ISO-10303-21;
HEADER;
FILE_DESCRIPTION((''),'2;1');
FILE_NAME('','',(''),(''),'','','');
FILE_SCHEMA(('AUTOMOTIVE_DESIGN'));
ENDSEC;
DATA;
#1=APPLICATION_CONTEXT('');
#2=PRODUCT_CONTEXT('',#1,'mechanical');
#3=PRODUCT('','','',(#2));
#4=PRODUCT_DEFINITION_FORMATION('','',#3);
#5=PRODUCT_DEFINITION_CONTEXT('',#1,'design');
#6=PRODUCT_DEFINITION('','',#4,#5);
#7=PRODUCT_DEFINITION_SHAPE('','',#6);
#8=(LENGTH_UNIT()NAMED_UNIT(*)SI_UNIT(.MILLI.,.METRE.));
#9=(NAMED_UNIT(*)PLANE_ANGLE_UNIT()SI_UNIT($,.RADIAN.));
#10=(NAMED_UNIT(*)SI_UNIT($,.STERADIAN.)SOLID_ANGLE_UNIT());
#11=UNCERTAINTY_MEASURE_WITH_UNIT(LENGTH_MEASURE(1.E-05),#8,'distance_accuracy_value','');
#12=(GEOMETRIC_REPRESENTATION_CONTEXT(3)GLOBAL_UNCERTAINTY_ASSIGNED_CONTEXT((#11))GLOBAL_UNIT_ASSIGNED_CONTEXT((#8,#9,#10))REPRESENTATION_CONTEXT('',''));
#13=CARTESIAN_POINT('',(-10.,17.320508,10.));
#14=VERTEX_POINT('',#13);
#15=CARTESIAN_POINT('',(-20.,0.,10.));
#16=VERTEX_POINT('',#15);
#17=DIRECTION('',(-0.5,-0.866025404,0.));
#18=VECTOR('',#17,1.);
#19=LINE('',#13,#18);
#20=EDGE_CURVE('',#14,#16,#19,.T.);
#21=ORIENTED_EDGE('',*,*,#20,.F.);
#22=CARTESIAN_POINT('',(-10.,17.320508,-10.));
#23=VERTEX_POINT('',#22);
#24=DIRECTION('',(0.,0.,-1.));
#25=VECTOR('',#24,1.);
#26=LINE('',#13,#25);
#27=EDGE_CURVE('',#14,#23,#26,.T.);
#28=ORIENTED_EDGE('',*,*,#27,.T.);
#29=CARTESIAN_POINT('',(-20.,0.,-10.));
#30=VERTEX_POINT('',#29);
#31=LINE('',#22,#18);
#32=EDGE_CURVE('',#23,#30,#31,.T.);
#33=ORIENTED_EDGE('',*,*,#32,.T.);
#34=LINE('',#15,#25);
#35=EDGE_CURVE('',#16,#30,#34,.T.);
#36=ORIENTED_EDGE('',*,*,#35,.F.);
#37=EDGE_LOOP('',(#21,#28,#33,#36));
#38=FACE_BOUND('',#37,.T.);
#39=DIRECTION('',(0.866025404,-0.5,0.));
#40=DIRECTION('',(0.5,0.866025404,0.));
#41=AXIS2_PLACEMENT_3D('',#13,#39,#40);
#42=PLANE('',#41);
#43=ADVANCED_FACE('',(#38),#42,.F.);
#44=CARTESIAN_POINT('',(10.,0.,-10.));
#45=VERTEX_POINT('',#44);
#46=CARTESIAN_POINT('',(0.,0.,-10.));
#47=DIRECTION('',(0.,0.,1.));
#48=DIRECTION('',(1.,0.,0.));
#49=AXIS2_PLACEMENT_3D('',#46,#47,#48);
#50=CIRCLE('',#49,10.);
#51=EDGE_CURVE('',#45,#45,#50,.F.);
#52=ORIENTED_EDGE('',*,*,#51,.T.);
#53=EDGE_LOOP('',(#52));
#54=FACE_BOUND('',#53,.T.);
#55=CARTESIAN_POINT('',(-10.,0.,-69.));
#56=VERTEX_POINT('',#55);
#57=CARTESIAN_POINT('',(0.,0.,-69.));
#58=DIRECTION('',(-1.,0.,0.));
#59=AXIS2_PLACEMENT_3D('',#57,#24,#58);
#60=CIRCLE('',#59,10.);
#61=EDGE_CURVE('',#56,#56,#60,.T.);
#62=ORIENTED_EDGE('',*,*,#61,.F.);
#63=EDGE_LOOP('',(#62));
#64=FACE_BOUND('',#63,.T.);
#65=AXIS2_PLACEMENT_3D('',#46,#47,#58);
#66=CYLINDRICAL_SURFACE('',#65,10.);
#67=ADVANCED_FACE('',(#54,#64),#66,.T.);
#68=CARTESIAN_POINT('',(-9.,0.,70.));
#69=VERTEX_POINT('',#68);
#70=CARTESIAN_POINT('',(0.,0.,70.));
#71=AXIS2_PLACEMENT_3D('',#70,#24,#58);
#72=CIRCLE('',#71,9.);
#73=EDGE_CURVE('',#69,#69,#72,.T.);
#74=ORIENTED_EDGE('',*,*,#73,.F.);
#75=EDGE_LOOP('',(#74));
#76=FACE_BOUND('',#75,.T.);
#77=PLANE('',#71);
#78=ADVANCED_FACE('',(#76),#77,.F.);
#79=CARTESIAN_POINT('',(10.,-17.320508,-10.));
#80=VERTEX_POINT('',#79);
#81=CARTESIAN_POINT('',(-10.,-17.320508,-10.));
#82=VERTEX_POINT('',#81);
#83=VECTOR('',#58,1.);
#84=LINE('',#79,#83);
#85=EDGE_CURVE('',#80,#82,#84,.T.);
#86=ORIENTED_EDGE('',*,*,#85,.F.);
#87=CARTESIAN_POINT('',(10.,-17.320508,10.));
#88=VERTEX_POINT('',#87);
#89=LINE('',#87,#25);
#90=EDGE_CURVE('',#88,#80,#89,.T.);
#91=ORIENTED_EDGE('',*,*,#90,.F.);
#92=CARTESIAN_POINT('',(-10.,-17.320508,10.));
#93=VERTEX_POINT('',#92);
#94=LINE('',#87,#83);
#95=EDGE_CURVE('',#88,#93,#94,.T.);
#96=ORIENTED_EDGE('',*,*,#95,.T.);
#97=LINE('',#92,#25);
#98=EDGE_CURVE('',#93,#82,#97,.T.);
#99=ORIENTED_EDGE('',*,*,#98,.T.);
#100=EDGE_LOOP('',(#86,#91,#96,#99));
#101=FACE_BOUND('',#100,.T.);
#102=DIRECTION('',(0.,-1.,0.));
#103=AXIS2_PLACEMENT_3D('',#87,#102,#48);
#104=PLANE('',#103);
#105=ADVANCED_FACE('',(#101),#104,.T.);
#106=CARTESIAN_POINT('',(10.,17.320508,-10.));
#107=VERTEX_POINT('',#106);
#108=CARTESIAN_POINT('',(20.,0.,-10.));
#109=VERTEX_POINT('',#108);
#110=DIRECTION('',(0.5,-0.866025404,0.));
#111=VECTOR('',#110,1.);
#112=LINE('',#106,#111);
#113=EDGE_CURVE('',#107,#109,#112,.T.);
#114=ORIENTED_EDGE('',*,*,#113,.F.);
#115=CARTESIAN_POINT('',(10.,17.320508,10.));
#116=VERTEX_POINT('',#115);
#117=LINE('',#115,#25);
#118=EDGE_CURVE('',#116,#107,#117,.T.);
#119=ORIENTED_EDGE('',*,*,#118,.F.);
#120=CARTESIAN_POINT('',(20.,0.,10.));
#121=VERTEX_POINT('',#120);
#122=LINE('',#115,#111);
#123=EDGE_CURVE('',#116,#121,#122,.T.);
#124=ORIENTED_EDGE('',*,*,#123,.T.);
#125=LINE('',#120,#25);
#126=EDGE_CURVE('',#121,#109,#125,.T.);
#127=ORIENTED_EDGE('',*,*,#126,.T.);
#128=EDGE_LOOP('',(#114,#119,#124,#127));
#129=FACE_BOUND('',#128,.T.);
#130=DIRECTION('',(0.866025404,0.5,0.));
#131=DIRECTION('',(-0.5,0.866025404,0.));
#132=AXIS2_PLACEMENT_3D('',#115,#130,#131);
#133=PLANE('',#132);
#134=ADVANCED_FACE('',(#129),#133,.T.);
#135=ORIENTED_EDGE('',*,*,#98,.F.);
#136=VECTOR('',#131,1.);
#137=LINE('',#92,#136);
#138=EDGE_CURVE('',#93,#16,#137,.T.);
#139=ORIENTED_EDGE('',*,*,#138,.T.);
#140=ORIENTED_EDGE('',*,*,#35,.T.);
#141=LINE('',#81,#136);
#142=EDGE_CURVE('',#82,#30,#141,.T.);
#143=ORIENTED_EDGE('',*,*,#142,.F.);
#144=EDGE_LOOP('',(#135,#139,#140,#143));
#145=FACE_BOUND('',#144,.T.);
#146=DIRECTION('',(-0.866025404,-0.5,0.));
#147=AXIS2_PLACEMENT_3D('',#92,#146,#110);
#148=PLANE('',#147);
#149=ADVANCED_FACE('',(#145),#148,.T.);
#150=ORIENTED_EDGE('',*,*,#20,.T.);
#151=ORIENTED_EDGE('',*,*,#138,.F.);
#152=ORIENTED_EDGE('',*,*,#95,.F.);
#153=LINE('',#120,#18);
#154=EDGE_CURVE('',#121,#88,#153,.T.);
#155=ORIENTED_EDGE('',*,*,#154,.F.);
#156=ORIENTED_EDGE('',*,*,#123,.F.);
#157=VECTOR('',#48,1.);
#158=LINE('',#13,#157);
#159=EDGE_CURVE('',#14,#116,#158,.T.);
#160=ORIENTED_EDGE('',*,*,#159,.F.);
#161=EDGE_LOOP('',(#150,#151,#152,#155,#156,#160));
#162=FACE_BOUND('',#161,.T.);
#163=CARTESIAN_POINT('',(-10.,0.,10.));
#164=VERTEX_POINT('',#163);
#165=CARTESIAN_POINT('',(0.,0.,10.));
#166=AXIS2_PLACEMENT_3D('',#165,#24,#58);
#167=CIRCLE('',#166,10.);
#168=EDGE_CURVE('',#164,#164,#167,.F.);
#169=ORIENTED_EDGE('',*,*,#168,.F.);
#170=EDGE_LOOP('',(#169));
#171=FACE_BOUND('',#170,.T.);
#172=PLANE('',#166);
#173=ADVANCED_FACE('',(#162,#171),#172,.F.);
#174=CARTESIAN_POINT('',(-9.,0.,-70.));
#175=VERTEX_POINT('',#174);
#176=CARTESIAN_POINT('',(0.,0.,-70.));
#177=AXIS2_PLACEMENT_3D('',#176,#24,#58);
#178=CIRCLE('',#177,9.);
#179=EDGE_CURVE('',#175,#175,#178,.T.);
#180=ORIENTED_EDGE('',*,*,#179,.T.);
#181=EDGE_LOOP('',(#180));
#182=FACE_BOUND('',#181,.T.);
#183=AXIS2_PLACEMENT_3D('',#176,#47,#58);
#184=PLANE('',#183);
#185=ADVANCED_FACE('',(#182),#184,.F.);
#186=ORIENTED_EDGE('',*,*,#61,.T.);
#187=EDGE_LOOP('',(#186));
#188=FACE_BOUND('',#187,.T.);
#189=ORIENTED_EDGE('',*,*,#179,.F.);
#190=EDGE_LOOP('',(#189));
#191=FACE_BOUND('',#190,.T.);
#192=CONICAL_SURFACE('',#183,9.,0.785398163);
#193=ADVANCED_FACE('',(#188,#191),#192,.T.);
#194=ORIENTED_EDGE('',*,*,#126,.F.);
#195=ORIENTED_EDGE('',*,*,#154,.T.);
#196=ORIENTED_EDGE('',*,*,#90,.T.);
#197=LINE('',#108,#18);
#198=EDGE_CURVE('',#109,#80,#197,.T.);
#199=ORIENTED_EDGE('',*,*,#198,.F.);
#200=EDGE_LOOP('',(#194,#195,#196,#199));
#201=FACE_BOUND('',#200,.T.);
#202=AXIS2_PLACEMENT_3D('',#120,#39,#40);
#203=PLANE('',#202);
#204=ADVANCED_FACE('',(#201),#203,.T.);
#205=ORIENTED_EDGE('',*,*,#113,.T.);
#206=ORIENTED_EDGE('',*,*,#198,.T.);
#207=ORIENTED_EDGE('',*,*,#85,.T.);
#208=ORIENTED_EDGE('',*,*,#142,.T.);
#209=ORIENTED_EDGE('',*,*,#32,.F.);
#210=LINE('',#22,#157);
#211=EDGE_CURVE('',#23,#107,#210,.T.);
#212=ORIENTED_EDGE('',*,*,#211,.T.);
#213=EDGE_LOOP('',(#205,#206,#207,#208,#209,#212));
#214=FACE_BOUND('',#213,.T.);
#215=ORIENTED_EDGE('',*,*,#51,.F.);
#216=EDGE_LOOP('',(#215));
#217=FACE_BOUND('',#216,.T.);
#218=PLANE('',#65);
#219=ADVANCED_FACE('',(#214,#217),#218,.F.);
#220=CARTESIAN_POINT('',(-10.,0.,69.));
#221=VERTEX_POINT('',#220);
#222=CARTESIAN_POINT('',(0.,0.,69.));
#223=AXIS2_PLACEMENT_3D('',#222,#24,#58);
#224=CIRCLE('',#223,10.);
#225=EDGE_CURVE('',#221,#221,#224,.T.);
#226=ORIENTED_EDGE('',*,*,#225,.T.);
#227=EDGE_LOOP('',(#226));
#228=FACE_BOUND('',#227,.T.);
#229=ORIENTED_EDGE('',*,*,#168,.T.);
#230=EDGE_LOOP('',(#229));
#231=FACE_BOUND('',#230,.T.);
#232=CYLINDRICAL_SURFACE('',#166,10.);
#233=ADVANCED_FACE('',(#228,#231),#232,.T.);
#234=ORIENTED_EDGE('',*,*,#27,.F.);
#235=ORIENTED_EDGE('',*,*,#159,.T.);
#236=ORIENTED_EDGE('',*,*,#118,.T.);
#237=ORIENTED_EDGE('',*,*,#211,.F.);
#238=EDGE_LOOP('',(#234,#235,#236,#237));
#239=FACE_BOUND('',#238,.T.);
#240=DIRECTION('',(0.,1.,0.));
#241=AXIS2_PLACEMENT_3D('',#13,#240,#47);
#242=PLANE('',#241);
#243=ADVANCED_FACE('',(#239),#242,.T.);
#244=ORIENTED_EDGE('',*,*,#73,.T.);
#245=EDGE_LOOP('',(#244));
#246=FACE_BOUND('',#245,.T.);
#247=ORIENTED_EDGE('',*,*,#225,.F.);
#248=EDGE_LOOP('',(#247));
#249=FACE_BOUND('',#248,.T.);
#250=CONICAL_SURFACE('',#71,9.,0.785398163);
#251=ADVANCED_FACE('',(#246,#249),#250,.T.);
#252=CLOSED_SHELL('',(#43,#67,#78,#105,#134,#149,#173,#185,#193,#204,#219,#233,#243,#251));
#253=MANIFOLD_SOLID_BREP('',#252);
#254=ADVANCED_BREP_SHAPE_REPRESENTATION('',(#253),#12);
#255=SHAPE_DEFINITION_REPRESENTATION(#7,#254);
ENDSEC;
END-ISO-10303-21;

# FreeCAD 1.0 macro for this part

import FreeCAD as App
import Part
import Sketcher
from FreeCAD import Vector
Q = App.Units.Quantity

doc = App.newDocument("Part")
params = doc.addObject("Spreadsheet::Sheet", "Params")
for row, (alias, value) in enumerate([
    ("sketch1_width", "20 mm"),
    ("sketch1_length", "20 mm"),
    ("pad1_length", "10 mm"),
    ("sketch2_width", "9 mm"),
    ("sketch2_width2", "10 mm"),
    ("sketch2_height", "60 mm"),
    ("sketch2_height2", "59 mm"),
    ("revolution_angle", "360 deg"),
], start=1):
    params.set(f"A{row}", alias)
    params.set(f"B{row}", "=" + value)
    params.setAlias(f"B{row}", alias)

body = doc.addObject("PartDesign::Body", "Body")

sketch1 = body.newObject("Sketcher::SketchObject", "Sketch")
sketch1.AttachmentSupport = (doc.getObject("XY_Plane"), [""])
sketch1.MapMode = "FlatFace"
sketch1.addGeometry(Part.LineSegment(Vector(10, 17, 0), Vector(-10, 17, 0)), False)
sketch1.addGeometry(Part.LineSegment(Vector(-10, 17, 0), Vector(-20, 0, 0)), False)
sketch1.addGeometry(Part.LineSegment(Vector(-20, 0, 0), Vector(-10, -17, 0)), False)
sketch1.addGeometry(Part.LineSegment(Vector(-10, -17, 0), Vector(10, -17, 0)), False)
sketch1.addGeometry(Part.LineSegment(Vector(10, -17, 0), Vector(20, 0, 0)), False)
sketch1.addGeometry(Part.LineSegment(Vector(20, 0, 0), Vector(10, 17, 0)), False)
sketch1.addConstraint(Sketcher.Constraint("Coincident", 0, 2, 1, 1))
sketch1.addConstraint(Sketcher.Constraint("Coincident", 1, 2, 2, 1))
sketch1.addConstraint(Sketcher.Constraint("Coincident", 2, 2, 3, 1))
sketch1.addConstraint(Sketcher.Constraint("Coincident", 3, 2, 4, 1))
sketch1.addConstraint(Sketcher.Constraint("Coincident", 4, 2, 5, 1))
sketch1.addConstraint(Sketcher.Constraint("Coincident", 5, 2, 0, 1))
sketch1.addConstraint(Sketcher.Constraint("Horizontal", 0))
sketch1.addConstraint(Sketcher.Constraint("Horizontal", 3))
sketch1.addConstraint(Sketcher.Constraint("Symmetric", 0, 2, 3, 2, -1, 1))
sketch1.addConstraint(Sketcher.Constraint("Symmetric", 1, 2, 4, 2, -1, 1))
sketch1.addConstraint(Sketcher.Constraint("PointOnObject", 1, 2, -1))
sketch1.addConstraint(Sketcher.Constraint("Parallel", 2, 5))
sketch1.addConstraint(Sketcher.Constraint("Vertical", 0, 2, 2, 2))
sketch1.addConstraint(Sketcher.Constraint("DistanceX", 0, 2, 0, 1, Q("20 mm")))
sketch1.addConstraint(Sketcher.Constraint("Angle", 1, Q("-120 deg")))
sketch1.addConstraint(Sketcher.Constraint("Distance", 1, Q("20 mm")))
sketch1.setExpression("Constraints[13]", "Params.sketch1_width")
sketch1.setExpression("Constraints[15]", "Params.sketch1_length")
pad1 = body.newObject("PartDesign::Pad", "Pad")
pad1.Profile = sketch1
pad1.setExpression("Length", "Params.pad1_length")

sketch2 = body.newObject("Sketcher::SketchObject", "Sketch001")
sketch2.AttachmentSupport = (doc.getObject("XZ_Plane"), [""])
sketch2.MapMode = "FlatFace"
sketch2.addGeometry(Part.LineSegment(Vector(0, 10, 0), Vector(0, 70, 0)), False)
sketch2.addGeometry(Part.LineSegment(Vector(0, 70, 0), Vector(9, 70, 0)), False)
sketch2.addGeometry(Part.LineSegment(Vector(9, 70, 0), Vector(10, 69, 0)), False)
sketch2.addGeometry(Part.LineSegment(Vector(10, 69, 0), Vector(10, 10, 0)), False)
sketch2.addGeometry(Part.LineSegment(Vector(10, 10, 0), Vector(0, 10, 0)), False)
sketch2.addConstraint(Sketcher.Constraint("Coincident", 0, 2, 1, 1))
sketch2.addConstraint(Sketcher.Constraint("Coincident", 1, 2, 2, 1))
sketch2.addConstraint(Sketcher.Constraint("Coincident", 2, 2, 3, 1))
sketch2.addConstraint(Sketcher.Constraint("Coincident", 3, 2, 4, 1))
sketch2.addConstraint(Sketcher.Constraint("Coincident", 4, 2, 0, 1))
sketch2.addConstraint(Sketcher.Constraint("Vertical", 0))
sketch2.addConstraint(Sketcher.Constraint("Horizontal", 1))
sketch2.addConstraint(Sketcher.Constraint("Vertical", 3))
sketch2.addConstraint(Sketcher.Constraint("Horizontal", 4))
sketch2.addConstraint(Sketcher.Constraint("PointOnObject", 0, 2, -2))
sketch2.addConstraint(Sketcher.Constraint("DistanceX", 1, 1, 1, 2, Q("9 mm")))
sketch2.addConstraint(Sketcher.Constraint("DistanceX", 4, 2, 4, 1, Q("10 mm")))
sketch2.addConstraint(Sketcher.Constraint("DistanceY", 0, 1, 0, 2, Q("60 mm")))
sketch2.addConstraint(Sketcher.Constraint("DistanceY", 3, 2, 3, 1, Q("59 mm")))
sketch2.addConstraint(Sketcher.Constraint("DistanceY", -1, 1, 0, 2, Q("70 mm")))
sketch2.setExpression("Constraints[10]", "Params.sketch2_width")
sketch2.setExpression("Constraints[11]", "Params.sketch2_width2")
sketch2.setExpression("Constraints[12]", "Params.sketch2_height")
sketch2.setExpression("Constraints[13]", "Params.sketch2_height2")
revolution = body.newObject("PartDesign::Revolution", "Revolution")
revolution.Profile = sketch2
revolution.ReferenceAxis = (sketch2, ["V_Axis"])
revolution.setExpression("Angle", "Params.revolution_angle")
doc.recompute()

mirrored = body.newObject("PartDesign::Mirrored", "Mirrored")
mirrored.Originals = [pad1, revolution]
mirrored.MirrorPlane = (doc.getObject("XY_Plane"), [""])
body.Tip = mirrored

doc.recompute()
